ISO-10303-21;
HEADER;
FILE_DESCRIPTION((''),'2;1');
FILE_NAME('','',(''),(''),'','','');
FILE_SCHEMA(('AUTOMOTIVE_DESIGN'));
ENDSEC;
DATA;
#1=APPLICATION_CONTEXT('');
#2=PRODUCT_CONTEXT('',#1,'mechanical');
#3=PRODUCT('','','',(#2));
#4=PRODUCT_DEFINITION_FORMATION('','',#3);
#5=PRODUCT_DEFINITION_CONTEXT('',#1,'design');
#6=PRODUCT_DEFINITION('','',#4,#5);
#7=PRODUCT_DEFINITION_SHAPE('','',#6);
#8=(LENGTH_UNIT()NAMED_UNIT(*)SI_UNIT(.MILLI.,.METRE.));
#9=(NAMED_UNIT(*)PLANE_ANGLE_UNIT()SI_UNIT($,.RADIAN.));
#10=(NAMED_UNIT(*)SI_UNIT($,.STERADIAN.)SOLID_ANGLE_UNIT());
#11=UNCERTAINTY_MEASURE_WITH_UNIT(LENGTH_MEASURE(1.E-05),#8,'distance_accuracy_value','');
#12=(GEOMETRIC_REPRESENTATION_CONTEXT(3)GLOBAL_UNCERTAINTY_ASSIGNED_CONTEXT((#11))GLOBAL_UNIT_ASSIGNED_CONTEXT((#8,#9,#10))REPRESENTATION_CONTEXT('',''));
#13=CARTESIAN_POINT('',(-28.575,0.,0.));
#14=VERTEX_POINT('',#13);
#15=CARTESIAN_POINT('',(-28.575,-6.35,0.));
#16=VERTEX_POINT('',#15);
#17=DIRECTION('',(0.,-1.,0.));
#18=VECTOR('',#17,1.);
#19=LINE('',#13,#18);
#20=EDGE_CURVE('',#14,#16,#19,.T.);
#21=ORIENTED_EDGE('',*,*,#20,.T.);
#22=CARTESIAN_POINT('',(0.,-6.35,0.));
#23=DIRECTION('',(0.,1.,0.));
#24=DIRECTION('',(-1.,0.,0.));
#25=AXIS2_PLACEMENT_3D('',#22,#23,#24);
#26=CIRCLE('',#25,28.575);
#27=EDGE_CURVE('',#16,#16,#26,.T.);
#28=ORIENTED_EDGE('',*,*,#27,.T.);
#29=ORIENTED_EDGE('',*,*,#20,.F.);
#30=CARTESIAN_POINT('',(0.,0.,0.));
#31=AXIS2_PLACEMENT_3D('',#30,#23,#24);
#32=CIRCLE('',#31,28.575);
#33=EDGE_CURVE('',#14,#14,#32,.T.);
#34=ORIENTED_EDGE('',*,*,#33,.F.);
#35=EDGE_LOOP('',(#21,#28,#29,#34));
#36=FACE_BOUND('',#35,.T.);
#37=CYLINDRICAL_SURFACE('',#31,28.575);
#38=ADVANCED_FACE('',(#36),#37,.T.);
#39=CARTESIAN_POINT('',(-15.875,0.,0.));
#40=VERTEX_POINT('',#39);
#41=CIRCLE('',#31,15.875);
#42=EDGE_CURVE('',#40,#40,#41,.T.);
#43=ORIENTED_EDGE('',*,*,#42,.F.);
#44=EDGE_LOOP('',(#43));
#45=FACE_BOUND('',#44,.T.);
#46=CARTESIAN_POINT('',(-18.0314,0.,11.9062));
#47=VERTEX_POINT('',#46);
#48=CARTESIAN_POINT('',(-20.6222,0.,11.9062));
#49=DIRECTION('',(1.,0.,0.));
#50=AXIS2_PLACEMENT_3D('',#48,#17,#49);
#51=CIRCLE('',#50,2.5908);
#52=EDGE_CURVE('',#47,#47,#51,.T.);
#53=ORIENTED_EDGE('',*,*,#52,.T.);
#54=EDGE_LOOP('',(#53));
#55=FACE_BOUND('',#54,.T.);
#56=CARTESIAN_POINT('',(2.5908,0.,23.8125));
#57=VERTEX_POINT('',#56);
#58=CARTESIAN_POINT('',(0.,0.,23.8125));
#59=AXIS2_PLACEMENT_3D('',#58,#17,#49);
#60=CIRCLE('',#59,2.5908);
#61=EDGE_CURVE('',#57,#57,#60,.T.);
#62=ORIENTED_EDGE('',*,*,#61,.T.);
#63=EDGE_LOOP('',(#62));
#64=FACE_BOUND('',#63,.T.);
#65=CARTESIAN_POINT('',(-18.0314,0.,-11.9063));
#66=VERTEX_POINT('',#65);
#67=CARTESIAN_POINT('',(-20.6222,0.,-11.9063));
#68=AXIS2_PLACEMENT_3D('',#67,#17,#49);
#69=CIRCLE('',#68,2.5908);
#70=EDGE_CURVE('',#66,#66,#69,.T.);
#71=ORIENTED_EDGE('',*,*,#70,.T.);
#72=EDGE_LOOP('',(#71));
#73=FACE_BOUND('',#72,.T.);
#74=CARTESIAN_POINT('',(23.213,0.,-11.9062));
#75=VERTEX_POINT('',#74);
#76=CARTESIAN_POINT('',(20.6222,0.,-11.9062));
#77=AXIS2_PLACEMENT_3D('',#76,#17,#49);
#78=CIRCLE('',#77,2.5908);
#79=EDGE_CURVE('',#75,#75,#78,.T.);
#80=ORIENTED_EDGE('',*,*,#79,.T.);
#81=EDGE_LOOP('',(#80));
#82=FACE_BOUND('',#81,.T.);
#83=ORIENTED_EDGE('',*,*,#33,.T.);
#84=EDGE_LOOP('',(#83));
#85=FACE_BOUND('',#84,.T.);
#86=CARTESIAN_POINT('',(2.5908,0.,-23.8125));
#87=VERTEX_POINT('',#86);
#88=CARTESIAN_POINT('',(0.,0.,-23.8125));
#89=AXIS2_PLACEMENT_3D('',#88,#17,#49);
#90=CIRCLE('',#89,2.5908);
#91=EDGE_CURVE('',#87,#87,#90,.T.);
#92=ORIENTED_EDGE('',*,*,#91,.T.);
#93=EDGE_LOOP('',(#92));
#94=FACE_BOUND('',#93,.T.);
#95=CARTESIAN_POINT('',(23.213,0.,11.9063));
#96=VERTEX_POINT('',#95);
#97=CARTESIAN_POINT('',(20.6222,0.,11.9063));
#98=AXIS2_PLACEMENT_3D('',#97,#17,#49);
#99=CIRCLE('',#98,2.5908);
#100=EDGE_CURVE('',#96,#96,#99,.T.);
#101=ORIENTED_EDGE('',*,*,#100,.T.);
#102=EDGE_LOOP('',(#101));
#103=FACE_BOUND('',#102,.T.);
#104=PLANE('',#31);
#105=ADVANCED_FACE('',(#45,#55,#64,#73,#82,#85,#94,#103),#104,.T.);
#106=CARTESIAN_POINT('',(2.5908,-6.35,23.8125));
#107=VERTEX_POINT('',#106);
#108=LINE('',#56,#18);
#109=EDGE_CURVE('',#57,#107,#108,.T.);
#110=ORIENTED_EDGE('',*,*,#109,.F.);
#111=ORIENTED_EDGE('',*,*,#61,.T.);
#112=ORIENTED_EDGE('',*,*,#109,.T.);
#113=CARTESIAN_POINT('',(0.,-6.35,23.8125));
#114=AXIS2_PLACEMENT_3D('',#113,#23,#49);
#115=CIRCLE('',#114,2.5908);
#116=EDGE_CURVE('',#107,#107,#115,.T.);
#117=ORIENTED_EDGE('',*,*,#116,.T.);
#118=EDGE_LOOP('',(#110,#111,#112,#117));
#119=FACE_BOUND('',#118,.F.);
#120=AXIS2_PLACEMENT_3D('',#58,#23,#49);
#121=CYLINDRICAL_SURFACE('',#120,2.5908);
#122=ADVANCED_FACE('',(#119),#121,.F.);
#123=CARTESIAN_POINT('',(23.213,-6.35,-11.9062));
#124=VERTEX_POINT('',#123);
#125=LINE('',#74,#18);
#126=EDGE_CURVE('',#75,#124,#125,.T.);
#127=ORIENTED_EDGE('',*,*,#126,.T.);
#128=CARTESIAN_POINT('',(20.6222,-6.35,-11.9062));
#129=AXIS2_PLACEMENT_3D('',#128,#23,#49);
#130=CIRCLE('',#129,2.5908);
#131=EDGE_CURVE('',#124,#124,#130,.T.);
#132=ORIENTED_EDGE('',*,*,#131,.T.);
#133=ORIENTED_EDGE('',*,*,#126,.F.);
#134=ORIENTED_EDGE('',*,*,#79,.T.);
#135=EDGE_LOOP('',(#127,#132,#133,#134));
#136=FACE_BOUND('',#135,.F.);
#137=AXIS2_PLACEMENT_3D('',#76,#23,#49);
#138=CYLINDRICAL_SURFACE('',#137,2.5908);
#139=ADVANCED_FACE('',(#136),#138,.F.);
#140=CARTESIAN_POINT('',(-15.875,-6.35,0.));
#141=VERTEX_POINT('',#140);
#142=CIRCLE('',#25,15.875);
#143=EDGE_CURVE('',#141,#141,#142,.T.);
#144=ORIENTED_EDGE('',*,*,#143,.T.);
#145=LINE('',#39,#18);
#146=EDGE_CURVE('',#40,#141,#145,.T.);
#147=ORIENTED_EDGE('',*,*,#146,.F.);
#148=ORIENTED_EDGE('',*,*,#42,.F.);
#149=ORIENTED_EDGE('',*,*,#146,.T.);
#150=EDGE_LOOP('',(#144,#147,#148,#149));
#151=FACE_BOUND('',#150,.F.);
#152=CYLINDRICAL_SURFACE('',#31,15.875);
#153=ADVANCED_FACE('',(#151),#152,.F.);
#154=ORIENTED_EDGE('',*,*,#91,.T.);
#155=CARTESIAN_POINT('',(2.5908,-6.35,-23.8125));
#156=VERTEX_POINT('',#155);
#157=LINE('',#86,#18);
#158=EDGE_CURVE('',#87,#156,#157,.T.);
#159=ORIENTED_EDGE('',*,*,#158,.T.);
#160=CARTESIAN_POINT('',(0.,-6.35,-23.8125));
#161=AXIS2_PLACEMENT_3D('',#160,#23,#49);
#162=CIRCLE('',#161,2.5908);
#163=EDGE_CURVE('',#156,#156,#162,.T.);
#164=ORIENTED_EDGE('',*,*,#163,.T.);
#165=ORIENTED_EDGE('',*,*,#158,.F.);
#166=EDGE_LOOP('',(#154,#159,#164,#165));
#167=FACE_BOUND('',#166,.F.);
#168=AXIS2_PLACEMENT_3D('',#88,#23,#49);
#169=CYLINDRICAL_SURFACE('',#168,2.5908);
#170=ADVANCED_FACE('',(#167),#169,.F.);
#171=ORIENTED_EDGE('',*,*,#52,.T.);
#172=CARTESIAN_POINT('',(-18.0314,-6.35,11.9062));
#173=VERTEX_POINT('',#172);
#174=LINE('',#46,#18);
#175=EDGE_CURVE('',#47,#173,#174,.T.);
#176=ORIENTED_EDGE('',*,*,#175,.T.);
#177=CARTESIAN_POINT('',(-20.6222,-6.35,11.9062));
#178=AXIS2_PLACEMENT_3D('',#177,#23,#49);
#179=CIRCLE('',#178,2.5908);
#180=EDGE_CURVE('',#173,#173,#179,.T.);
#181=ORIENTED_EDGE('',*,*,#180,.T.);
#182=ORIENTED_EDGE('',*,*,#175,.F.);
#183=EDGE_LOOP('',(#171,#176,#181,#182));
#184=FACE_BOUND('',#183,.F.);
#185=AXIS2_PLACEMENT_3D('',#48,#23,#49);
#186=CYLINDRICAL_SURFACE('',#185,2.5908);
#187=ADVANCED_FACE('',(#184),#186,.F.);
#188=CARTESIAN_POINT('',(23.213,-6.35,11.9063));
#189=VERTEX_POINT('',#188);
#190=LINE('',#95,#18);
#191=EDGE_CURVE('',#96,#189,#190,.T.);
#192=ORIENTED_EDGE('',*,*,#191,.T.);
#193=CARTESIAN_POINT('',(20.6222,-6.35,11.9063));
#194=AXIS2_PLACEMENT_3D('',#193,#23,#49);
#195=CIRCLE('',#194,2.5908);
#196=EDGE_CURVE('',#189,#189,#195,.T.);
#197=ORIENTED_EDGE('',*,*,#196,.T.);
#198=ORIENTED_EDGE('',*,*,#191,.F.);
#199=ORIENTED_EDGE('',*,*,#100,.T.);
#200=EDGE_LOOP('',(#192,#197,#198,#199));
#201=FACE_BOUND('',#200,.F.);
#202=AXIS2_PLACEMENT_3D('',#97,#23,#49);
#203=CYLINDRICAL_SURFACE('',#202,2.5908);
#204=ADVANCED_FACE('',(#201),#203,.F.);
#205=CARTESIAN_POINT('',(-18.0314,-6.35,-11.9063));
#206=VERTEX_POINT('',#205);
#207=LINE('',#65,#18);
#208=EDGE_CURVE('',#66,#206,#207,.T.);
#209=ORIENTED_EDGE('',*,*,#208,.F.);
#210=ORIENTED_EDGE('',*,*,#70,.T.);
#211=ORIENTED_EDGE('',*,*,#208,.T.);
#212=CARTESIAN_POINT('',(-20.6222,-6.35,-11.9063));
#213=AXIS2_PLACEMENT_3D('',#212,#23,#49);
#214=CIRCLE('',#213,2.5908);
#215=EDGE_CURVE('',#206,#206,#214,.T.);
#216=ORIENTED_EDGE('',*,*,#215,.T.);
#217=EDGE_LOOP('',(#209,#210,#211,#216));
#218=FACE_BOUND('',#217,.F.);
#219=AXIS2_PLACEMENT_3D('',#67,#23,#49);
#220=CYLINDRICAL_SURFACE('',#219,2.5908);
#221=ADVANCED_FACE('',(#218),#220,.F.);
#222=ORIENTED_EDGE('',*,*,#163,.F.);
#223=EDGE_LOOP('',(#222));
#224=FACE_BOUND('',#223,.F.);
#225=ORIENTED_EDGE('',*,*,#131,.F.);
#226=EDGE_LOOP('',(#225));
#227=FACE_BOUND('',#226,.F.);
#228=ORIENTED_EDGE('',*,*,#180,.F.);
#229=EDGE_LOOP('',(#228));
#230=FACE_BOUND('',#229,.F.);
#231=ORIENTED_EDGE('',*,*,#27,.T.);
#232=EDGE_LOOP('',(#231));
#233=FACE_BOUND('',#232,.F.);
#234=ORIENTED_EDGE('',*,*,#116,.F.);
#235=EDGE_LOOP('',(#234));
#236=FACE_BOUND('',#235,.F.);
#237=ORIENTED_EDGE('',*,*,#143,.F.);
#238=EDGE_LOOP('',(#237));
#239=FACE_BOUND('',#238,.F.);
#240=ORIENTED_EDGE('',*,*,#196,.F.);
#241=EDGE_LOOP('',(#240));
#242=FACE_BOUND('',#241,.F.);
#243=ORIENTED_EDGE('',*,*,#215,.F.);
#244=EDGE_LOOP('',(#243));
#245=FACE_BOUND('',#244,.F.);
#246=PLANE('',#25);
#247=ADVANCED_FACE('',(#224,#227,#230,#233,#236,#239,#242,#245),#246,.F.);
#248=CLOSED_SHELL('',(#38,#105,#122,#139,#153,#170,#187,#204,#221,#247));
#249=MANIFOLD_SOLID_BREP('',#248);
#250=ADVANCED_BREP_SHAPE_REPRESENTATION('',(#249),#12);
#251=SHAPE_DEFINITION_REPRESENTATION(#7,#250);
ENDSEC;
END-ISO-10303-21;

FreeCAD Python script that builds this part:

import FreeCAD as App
import Part
import Sketcher

V = App.Vector
Q = App.Units.Quantity

doc = App.newDocument("Part")
body = doc.addObject("PartDesign::Body", "Body")

# Sketch on XZ plane
sketch1 = body.newObject("Sketcher::SketchObject", "Sketch")
sketch1.AttachmentSupport = (doc.getObject("XZ_Plane"), [""])
sketch1.MapMode = "FlatFace"
sketch1.addGeometry(Part.Circle(V(0, 0, 0), V(0, 0, 1), 29), False)
sketch1.addGeometry(Part.Circle(V(0, 0, 0), V(0, 0, 1), 16), False)
sketch1.addConstraint(Sketcher.Constraint("Coincident", 0, 3, -1, 1))
sketch1.addConstraint(Sketcher.Constraint("Coincident", 1, 3, -1, 1))
sketch1.addConstraint(Sketcher.Constraint("Diameter", 0, Q("2.25 in")))
sketch1.addConstraint(Sketcher.Constraint("Diameter", 1, Q("1.25 in")))
pad1 = body.newObject("PartDesign::Pad", "Pad")
pad1.Profile = sketch1
pad1.Length = Q("0.25 in")

# Sketch on XZ plane
sketch2 = body.newObject("Sketcher::SketchObject", "Sketch001")
sketch2.AttachmentSupport = (doc.getObject("XZ_Plane"), [""])
sketch2.MapMode = "FlatFace"
sketch2.addGeometry(Part.Circle(V(20.6, -11.9, 0), V(0, 0, 1), 2.6), False)
sketch2.addGeometry(Part.Circle(V(20.6, 11.9, 0), V(0, 0, 1), 2.6), False)
sketch2.addGeometry(Part.Circle(V(0, -23.8, 0), V(0, 0, 1), 2.6), False)
sketch2.addGeometry(Part.Circle(V(0, 23.8, 0), V(0, 0, 1), 2.6), False)
sketch2.addGeometry(Part.Circle(V(-20.6, -11.9, 0), V(0, 0, 1), 2.6), False)
sketch2.addGeometry(Part.Circle(V(-20.6, 11.9, 0), V(0, 0, 1), 2.6), False)
sketch2.addConstraint(Sketcher.Constraint("Equal", 0, 1))
sketch2.addConstraint(Sketcher.Constraint("Equal", 1, 2))
sketch2.addConstraint(Sketcher.Constraint("Equal", 2, 3))
sketch2.addConstraint(Sketcher.Constraint("Equal", 3, 4))
sketch2.addConstraint(Sketcher.Constraint("Equal", 4, 5))
sketch2.addConstraint(Sketcher.Constraint("Symmetric", 2, 3, 3, 3, -1, 1))
sketch2.addConstraint(Sketcher.Constraint("Symmetric", 1, 3, 4, 3, -1, 1))
sketch2.addConstraint(Sketcher.Constraint("Symmetric", 0, 3, 5, 3, -1, 1))
sketch2.addConstraint(Sketcher.Constraint("Symmetric", 0, 3, 4, 3, -2))
sketch2.addConstraint(Sketcher.Constraint("PointOnObject", 2, 3, -2))
sketch2.addConstraint(Sketcher.Constraint("Diameter", 0, Q("0.204 in")))
sketch2.addConstraint(Sketcher.Constraint("DistanceY", 2, 3, 3, 3, Q("1.875 in")))
sketch2.addConstraint(Sketcher.Constraint("DistanceY", 0, 3, -1, 1, Q("0.468748 in")))
sketch2.addConstraint(Sketcher.Constraint("DistanceX", -1, 1, 0, 3, Q("0.8119 in")))
pocket1 = body.newObject("PartDesign::Pocket", "Pocket")
pocket1.Profile = sketch2
pocket1.Length = Q("1 in")
pocket1.Reversed = True

doc.recompute()
